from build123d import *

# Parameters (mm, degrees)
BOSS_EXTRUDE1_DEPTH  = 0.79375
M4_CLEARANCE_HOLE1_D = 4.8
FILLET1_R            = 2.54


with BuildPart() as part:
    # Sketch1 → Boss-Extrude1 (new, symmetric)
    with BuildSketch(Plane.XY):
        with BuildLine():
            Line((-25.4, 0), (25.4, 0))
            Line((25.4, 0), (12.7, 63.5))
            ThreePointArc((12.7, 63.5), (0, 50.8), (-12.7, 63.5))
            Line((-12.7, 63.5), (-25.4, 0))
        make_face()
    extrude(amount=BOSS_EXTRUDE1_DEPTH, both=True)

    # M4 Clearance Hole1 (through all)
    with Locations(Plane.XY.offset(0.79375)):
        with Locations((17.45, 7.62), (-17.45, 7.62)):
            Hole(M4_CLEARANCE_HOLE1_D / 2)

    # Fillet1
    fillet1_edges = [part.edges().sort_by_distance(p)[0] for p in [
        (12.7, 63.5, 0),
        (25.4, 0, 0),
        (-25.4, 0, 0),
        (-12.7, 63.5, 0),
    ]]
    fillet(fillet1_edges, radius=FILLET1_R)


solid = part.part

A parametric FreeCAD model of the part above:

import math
import FreeCAD as App
import Part
import Sketcher
Q = App.Units.Quantity


def edges_at(feature, points):
    """Names of the edges that pass closest to the given points."""
    edges = feature.Shape.Edges
    near = lambda p: min(range(len(edges)), key=lambda i: edges[i].distToShape(Part.Vertex(*p))[0])
    return sorted({f"Edge{near(p) + 1}" for p in points})

doc = App.newDocument("Part")
body = doc.addObject("PartDesign::Body", "Body")

# Sketch on XY plane
sketch1 = body.newObject("Sketcher::SketchObject", "Sketch")
sketch1.AttachmentSupport = (doc.getObject("XY_Plane"), [""])
sketch1.MapMode = "FlatFace"
sketch1.addGeometry([
    Part.LineSegment(App.Vector(-25, 0, 0), App.Vector(25, 0, 0)),
    Part.LineSegment(App.Vector(25, 0, 0), App.Vector(13, 64, 0)),
    Part.ArcOfCircle(Part.Circle(App.Vector(0, 64, 0), App.Vector(0, 0, 1), 13), math.radians(180), math.radians(360)),
    Part.LineSegment(App.Vector(-13, 64, 0), App.Vector(-25, 0, 0)),
], False)
sketch1.addConstraint([
    Sketcher.Constraint("Coincident", 0, 2, 1, 1),
    Sketcher.Constraint("Coincident", 1, 2, 2, 2),
    Sketcher.Constraint("Coincident", 2, 1, 3, 1),
    Sketcher.Constraint("Coincident", 3, 2, 0, 1),
    Sketcher.Constraint("Horizontal", 0),
    Sketcher.Constraint("Symmetric", 0, 2, 3, 2, -1, 1),
    Sketcher.Constraint("Symmetric", 1, 2, 2, 1, -2),
    Sketcher.Constraint("Horizontal", 2, 3, 1, 2),
    Sketcher.Constraint("Radius", 2, Q("0.5 in")),
    Sketcher.Constraint("DistanceX", 0, 1, 0, 2, Q("2 in")),
    Sketcher.Constraint("DistanceY", -1, 1, 2, 3, Q("2.5 in")),
])
pad1 = body.newObject("PartDesign::Pad", "Pad")
pad1.Profile = sketch1
pad1.Length = Q("0.0625 in")
pad1.Midplane = True

# Sketch on XY plane
sketch2 = body.newObject("Sketcher::SketchObject", "Sketch001")
sketch2.AttachmentSupport = (doc.getObject("XY_Plane"), [""])
sketch2.MapMode = "FlatFace"
sketch2.AttachmentOffset = App.Placement(App.Vector(0, 0, 0.03125 * 25.4), App.Rotation())
sketch2.addGeometry([
    Part.Circle(App.Vector(17.4, 7.6, 0), App.Vector(0, 0, 1), 2.4),
    Part.Circle(App.Vector(-17.4, 7.6, 0), App.Vector(0, 0, 1), 2.4),
], False)
sketch2.addConstraint([
    Sketcher.Constraint("Equal", 0, 1),
    Sketcher.Constraint("Symmetric", 0, 3, 1, 3, -2),
    Sketcher.Constraint("DistanceY", -1, 1, 0, 3, Q("0.3 in")),
    Sketcher.Constraint("Diameter", 0, 4.8),
    Sketcher.Constraint("DistanceX", -1, 1, 0, 3, 17.45),
])
doc.recompute()
hole = body.newObject("PartDesign::Hole", "Hole")
hole.Profile = sketch2
hole.ThreadType = "None"
hole.Diameter = 4.8
hole.DepthType = "ThroughAll"
doc.recompute()

fillet = body.newObject("PartDesign::Fillet", "Fillet")
fillet.Base = (hole, edges_at(hole, [
    (12.7, 63.5, 0),
    (25.4, 0, 0),
    (-25.4, 0, 0),
    (-12.7, 63.5, 0),
]))
fillet.Radius = Q("0.1 in")

doc.recompute()
